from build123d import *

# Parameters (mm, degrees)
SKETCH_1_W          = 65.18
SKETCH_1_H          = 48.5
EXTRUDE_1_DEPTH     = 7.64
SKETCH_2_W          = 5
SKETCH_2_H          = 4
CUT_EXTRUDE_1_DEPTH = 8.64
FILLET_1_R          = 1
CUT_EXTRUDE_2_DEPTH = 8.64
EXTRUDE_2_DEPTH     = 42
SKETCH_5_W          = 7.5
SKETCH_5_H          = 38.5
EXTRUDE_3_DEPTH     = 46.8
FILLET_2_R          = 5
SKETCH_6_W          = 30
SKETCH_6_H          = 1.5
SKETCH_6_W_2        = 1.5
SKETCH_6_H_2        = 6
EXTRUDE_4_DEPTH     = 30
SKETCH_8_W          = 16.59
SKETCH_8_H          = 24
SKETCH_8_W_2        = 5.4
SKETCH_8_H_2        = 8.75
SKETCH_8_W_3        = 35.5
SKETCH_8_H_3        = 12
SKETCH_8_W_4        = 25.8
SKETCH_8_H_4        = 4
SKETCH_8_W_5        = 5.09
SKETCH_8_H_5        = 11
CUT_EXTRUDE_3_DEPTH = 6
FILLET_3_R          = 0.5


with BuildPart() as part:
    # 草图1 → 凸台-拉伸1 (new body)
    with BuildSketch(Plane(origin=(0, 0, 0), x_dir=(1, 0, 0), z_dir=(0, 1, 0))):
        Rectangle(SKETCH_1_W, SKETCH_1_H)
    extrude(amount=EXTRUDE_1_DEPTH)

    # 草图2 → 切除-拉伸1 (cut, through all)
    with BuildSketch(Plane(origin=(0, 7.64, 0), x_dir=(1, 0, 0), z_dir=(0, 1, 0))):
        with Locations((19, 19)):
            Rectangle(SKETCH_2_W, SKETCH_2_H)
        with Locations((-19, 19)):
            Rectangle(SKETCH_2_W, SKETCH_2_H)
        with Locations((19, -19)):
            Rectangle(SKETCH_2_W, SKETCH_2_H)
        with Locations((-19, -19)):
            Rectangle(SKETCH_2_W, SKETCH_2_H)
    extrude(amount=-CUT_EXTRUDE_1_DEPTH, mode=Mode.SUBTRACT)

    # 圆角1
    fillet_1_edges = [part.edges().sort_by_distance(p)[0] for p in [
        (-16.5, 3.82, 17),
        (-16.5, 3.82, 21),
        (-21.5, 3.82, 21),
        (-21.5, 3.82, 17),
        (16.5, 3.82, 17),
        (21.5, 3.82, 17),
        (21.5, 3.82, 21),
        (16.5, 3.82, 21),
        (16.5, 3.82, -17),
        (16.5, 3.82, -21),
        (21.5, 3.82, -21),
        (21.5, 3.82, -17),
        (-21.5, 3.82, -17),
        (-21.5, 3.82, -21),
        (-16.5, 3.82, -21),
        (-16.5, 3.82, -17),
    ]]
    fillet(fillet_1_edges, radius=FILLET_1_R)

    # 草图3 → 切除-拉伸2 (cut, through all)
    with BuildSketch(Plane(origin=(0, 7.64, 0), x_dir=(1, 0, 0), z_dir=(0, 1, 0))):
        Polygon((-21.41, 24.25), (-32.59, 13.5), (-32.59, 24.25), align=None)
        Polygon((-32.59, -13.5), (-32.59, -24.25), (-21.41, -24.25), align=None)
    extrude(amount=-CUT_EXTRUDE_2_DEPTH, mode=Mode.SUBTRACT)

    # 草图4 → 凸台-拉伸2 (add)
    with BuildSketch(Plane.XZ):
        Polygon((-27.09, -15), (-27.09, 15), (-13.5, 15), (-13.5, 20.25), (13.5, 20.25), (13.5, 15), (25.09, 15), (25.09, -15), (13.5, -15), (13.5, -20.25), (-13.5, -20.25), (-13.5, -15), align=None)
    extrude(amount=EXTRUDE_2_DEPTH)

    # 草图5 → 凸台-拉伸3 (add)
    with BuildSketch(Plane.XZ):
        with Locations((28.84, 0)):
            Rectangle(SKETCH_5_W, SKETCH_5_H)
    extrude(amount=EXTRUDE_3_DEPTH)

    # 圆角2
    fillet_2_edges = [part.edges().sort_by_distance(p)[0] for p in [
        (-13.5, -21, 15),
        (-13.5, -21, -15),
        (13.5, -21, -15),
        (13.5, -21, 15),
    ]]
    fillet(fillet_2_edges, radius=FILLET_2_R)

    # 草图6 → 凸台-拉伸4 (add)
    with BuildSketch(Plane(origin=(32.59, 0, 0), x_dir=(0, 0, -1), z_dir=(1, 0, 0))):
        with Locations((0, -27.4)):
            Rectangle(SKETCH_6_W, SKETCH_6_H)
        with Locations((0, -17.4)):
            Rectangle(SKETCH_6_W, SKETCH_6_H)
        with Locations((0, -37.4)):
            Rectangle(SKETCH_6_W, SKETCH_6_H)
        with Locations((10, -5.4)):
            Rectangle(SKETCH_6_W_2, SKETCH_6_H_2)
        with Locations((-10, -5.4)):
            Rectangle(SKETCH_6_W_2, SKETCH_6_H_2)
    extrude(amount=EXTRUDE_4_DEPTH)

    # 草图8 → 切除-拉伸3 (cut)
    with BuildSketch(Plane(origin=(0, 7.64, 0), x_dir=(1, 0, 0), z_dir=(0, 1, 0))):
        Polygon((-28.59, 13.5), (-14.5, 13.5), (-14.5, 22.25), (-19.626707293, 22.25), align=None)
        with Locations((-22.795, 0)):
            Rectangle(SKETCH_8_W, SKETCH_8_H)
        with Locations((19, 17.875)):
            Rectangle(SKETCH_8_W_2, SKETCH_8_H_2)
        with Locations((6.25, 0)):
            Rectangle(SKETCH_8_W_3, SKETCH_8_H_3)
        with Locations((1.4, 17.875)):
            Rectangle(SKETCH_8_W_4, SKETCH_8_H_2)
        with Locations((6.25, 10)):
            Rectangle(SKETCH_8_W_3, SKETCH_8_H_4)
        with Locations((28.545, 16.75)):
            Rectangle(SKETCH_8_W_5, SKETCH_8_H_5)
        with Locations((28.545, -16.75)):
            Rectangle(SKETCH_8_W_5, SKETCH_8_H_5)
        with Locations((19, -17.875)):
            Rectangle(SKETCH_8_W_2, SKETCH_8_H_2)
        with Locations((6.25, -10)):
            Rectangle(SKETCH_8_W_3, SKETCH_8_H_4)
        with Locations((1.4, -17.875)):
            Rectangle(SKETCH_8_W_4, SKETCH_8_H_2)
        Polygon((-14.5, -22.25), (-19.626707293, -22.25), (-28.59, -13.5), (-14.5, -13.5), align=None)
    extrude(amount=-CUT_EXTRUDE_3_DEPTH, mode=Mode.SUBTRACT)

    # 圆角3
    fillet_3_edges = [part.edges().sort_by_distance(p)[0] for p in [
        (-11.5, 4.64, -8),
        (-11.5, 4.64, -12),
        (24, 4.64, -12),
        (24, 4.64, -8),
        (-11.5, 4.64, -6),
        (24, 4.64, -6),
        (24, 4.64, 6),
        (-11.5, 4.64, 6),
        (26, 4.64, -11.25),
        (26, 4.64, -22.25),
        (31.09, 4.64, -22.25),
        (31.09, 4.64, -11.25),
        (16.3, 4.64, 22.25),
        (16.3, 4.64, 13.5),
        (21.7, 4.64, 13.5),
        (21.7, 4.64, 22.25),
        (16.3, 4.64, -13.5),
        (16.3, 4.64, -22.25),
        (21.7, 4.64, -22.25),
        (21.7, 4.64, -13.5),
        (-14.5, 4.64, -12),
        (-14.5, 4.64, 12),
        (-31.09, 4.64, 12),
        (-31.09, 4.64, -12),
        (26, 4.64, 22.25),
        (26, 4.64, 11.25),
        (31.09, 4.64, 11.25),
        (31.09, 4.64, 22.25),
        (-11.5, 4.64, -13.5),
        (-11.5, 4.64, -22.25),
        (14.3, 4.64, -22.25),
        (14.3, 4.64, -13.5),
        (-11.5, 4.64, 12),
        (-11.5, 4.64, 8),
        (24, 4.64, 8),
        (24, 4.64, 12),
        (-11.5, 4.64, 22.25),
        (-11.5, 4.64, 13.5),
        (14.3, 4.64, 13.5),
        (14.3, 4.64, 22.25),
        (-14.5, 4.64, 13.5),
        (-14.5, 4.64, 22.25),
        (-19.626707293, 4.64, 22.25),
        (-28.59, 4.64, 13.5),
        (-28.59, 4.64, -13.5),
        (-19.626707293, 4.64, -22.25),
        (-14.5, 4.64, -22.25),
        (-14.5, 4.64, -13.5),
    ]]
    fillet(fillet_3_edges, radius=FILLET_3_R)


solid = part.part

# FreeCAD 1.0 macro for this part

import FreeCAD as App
import Part
import Sketcher


def edges_at(feature, points):
    """Names of the edges that pass closest to the given points."""
    edges = feature.Shape.Edges
    near = lambda p: min(range(len(edges)), key=lambda i: edges[i].distToShape(Part.Vertex(*p))[0])
    return sorted({f"Edge{near(p) + 1}" for p in points})

doc = App.newDocument("Part")
body = doc.addObject("PartDesign::Body", "Body")

# Sketch on XZ plane
sketch1 = body.newObject("Sketcher::SketchObject", "Sketch")
sketch1.AttachmentSupport = (doc.getObject("XZ_Plane"), [""])
sketch1.MapMode = "FlatFace"
sketch1.addGeometry(Part.LineSegment(App.Vector(-32.59, -24.25, 0), App.Vector(-32.59, 24.25, 0)), False)
sketch1.addGeometry(Part.LineSegment(App.Vector(-32.59, 24.25, 0), App.Vector(32.59, 24.25, 0)), False)
sketch1.addGeometry(Part.LineSegment(App.Vector(32.59, 24.25, 0), App.Vector(32.59, -24.25, 0)), False)
sketch1.addGeometry(Part.LineSegment(App.Vector(32.59, -24.25, 0), App.Vector(-32.59, -24.25, 0)), False)
sketch1.addConstraint(Sketcher.Constraint("Coincident", 0, 2, 1, 1))
sketch1.addConstraint(Sketcher.Constraint("Coincident", 1, 2, 2, 1))
sketch1.addConstraint(Sketcher.Constraint("Coincident", 2, 2, 3, 1))
sketch1.addConstraint(Sketcher.Constraint("Coincident", 3, 2, 0, 1))
sketch1.addConstraint(Sketcher.Constraint("Vertical", 0))
sketch1.addConstraint(Sketcher.Constraint("Horizontal", 1))
sketch1.addConstraint(Sketcher.Constraint("Vertical", 2))
sketch1.addConstraint(Sketcher.Constraint("Horizontal", 3))
sketch1.addConstraint(Sketcher.Constraint("Symmetric", 0, 2, 2, 2, -1, 1))
sketch1.addConstraint(Sketcher.Constraint("DistanceY", 0, 1, 0, 2, 48.5))
sketch1.addConstraint(Sketcher.Constraint("DistanceX", 1, 1, 1, 2, 65.18))
pad1 = body.newObject("PartDesign::Pad", "Pad")
pad1.Profile = sketch1
pad1.Length = 7.64
pad1.Reversed = True

# Sketch on XZ plane
sketch2 = body.newObject("Sketcher::SketchObject", "Sketch001")
sketch2.AttachmentSupport = (doc.getObject("XZ_Plane"), [""])
sketch2.MapMode = "FlatFace"
sketch2.AttachmentOffset = App.Placement(App.Vector(0, 0, -7.64), App.Rotation())
sketch2.addGeometry(Part.LineSegment(App.Vector(16.5, -21, 0), App.Vector(16.5, -17, 0)), False)
sketch2.addGeometry(Part.LineSegment(App.Vector(16.5, -17, 0), App.Vector(21.5, -17, 0)), False)
sketch2.addGeometry(Part.LineSegment(App.Vector(21.5, -17, 0), App.Vector(21.5, -21, 0)), False)
sketch2.addGeometry(Part.LineSegment(App.Vector(21.5, -21, 0), App.Vector(16.5, -21, 0)), False)
sketch2.addGeometry(Part.LineSegment(App.Vector(-21.5, -21, 0), App.Vector(-21.5, -17, 0)), False)
sketch2.addGeometry(Part.LineSegment(App.Vector(-21.5, -17, 0), App.Vector(-16.5, -17, 0)), False)
sketch2.addGeometry(Part.LineSegment(App.Vector(-16.5, -17, 0), App.Vector(-16.5, -21, 0)), False)
sketch2.addGeometry(Part.LineSegment(App.Vector(-16.5, -21, 0), App.Vector(-21.5, -21, 0)), False)
sketch2.addGeometry(Part.LineSegment(App.Vector(16.5, 17, 0), App.Vector(16.5, 21, 0)), False)
sketch2.addGeometry(Part.LineSegment(App.Vector(16.5, 21, 0), App.Vector(21.5, 21, 0)), False)
sketch2.addGeometry(Part.LineSegment(App.Vector(21.5, 21, 0), App.Vector(21.5, 17, 0)), False)
sketch2.addGeometry(Part.LineSegment(App.Vector(21.5, 17, 0), App.Vector(16.5, 17, 0)), False)
sketch2.addGeometry(Part.LineSegment(App.Vector(-21.5, 17, 0), App.Vector(-21.5, 21, 0)), False)
sketch2.addGeometry(Part.LineSegment(App.Vector(-21.5, 21, 0), App.Vector(-16.5, 21, 0)), False)
sketch2.addGeometry(Part.LineSegment(App.Vector(-16.5, 21, 0), App.Vector(-16.5, 17, 0)), False)
sketch2.addGeometry(Part.LineSegment(App.Vector(-16.5, 17, 0), App.Vector(-21.5, 17, 0)), False)
sketch2.addConstraint(Sketcher.Constraint("Coincident", 0, 2, 1, 1))
sketch2.addConstraint(Sketcher.Constraint("Coincident", 1, 2, 2, 1))
sketch2.addConstraint(Sketcher.Constraint("Coincident", 2, 2, 3, 1))
sketch2.addConstraint(Sketcher.Constraint("Coincident", 3, 2, 0, 1))
sketch2.addConstraint(Sketcher.Constraint("Coincident", 4, 2, 5, 1))
sketch2.addConstraint(Sketcher.Constraint("Coincident", 5, 2, 6, 1))
sketch2.addConstraint(Sketcher.Constraint("Coincident", 6, 2, 7, 1))
sketch2.addConstraint(Sketcher.Constraint("Coincident", 7, 2, 4, 1))
sketch2.addConstraint(Sketcher.Constraint("Coincident", 8, 2, 9, 1))
sketch2.addConstraint(Sketcher.Constraint("Coincident", 9, 2, 10, 1))
sketch2.addConstraint(Sketcher.Constraint("Coincident", 10, 2, 11, 1))
sketch2.addConstraint(Sketcher.Constraint("Coincident", 11, 2, 8, 1))
sketch2.addConstraint(Sketcher.Constraint("Coincident", 12, 2, 13, 1))
sketch2.addConstraint(Sketcher.Constraint("Coincident", 13, 2, 14, 1))
sketch2.addConstraint(Sketcher.Constraint("Coincident", 14, 2, 15, 1))
sketch2.addConstraint(Sketcher.Constraint("Coincident", 15, 2, 12, 1))
sketch2.addConstraint(Sketcher.Constraint("Vertical", 0))
sketch2.addConstraint(Sketcher.Constraint("Horizontal", 1))
sketch2.addConstraint(Sketcher.Constraint("Vertical", 2))
sketch2.addConstraint(Sketcher.Constraint("Horizontal", 3))
sketch2.addConstraint(Sketcher.Constraint("Vertical", 4))
sketch2.addConstraint(Sketcher.Constraint("Horizontal", 5))
sketch2.addConstraint(Sketcher.Constraint("Vertical", 6))
sketch2.addConstraint(Sketcher.Constraint("Horizontal", 7))
sketch2.addConstraint(Sketcher.Constraint("Vertical", 8))
sketch2.addConstraint(Sketcher.Constraint("Horizontal", 9))
sketch2.addConstraint(Sketcher.Constraint("Vertical", 10))
sketch2.addConstraint(Sketcher.Constraint("Horizontal", 11))
sketch2.addConstraint(Sketcher.Constraint("Vertical", 12))
sketch2.addConstraint(Sketcher.Constraint("Horizontal", 13))
sketch2.addConstraint(Sketcher.Constraint("Vertical", 14))
sketch2.addConstraint(Sketcher.Constraint("Horizontal", 15))
sketch2.addConstraint(Sketcher.Constraint("Symmetric", 6, 2, 8, 2, -1, 1))
sketch2.addConstraint(Sketcher.Constraint("Symmetric", 4, 2, 10, 2, -1, 1))
sketch2.addConstraint(Sketcher.Constraint("Symmetric", 2, 2, 12, 2, -1, 1))
sketch2.addConstraint(Sketcher.Constraint("Symmetric", 0, 2, 14, 2, -1, 1))
sketch2.addConstraint(Sketcher.Constraint("Symmetric", 1, 2, 4, 2, -2))
sketch2.addConstraint(Sketcher.Constraint("Symmetric", 3, 2, 6, 2, -2))
sketch2.addConstraint(Sketcher.Constraint("DistanceX", 1, 1, 1, 2, 5.0))
sketch2.addConstraint(Sketcher.Constraint("DistanceY", 0, 1, 0, 2, 4.0))
sketch2.addConstraint(Sketcher.Constraint("DistanceY", 0, 2, -1, 1, 17.0))
sketch2.addConstraint(Sketcher.Constraint("DistanceX", 4, 2, 0, 2, 38.0))
pocket1 = body.newObject("PartDesign::Pocket", "Pocket")
pocket1.Profile = sketch2
pocket1.Type = "ThroughAll"
pocket1.Reversed = True
doc.recompute()

fillet = body.newObject("PartDesign::Fillet", "Fillet")
fillet.Base = (pocket1, edges_at(pocket1, [
    (-16.5, 3.82, 17),
    (-16.5, 3.82, 21),
    (-21.5, 3.82, 21),
    (-21.5, 3.82, 17),
    (16.5, 3.82, 17),
    (21.5, 3.82, 17),
    (21.5, 3.82, 21),
    (16.5, 3.82, 21),
    (16.5, 3.82, -17),
    (16.5, 3.82, -21),
    (21.5, 3.82, -21),
    (21.5, 3.82, -17),
    (-21.5, 3.82, -17),
    (-21.5, 3.82, -21),
    (-16.5, 3.82, -21),
    (-16.5, 3.82, -17),
]))
fillet.Radius = 1

# Sketch on XZ plane
sketch3 = body.newObject("Sketcher::SketchObject", "Sketch002")
sketch3.AttachmentSupport = (doc.getObject("XZ_Plane"), [""])
sketch3.MapMode = "FlatFace"
sketch3.AttachmentOffset = App.Placement(App.Vector(0, 0, -7.64), App.Rotation())
sketch3.addGeometry(Part.LineSegment(App.Vector(-32.59, -13.5, 0), App.Vector(-21.41, -24.25, 0)), False)
sketch3.addGeometry(Part.LineSegment(App.Vector(-21.41, -24.25, 0), App.Vector(-32.59, -24.25, 0)), False)
sketch3.addGeometry(Part.LineSegment(App.Vector(-32.59, -24.25, 0), App.Vector(-32.59, -13.5, 0)), False)
sketch3.addGeometry(Part.LineSegment(App.Vector(-32.59, 13.5, 0), App.Vector(-32.59, 24.25, 0)), False)
sketch3.addGeometry(Part.LineSegment(App.Vector(-32.59, 24.25, 0), App.Vector(-21.41, 24.25, 0)), False)
sketch3.addGeometry(Part.LineSegment(App.Vector(-21.41, 24.25, 0), App.Vector(-32.59, 13.5, 0)), False)
sketch3.addConstraint(Sketcher.Constraint("Coincident", 0, 2, 1, 1))
sketch3.addConstraint(Sketcher.Constraint("Coincident", 1, 2, 2, 1))
sketch3.addConstraint(Sketcher.Constraint("Coincident", 2, 2, 0, 1))
sketch3.addConstraint(Sketcher.Constraint("Coincident", 3, 2, 4, 1))
sketch3.addConstraint(Sketcher.Constraint("Coincident", 4, 2, 5, 1))
sketch3.addConstraint(Sketcher.Constraint("Coincident", 5, 2, 3, 1))
sketch3.addConstraint(Sketcher.Constraint("Horizontal", 1))
sketch3.addConstraint(Sketcher.Constraint("Vertical", 2))
sketch3.addConstraint(Sketcher.Constraint("Vertical", 3))
sketch3.addConstraint(Sketcher.Constraint("Horizontal", 4))
sketch3.addConstraint(Sketcher.Constraint("Symmetric", 1, 2, 3, 2, -1))
sketch3.addConstraint(Sketcher.Constraint("Vertical", 0, 2, 4, 2))
sketch3.addConstraint(Sketcher.Constraint("Equal", 2, 3))
sketch3.addConstraint(Sketcher.Constraint("DistanceY", 2, 2, 5, 2, 27.0))
sketch3.addConstraint(Sketcher.Constraint("DistanceX", 1, 2, 1, 1, 11.18))
sketch3.addConstraint(Sketcher.Constraint("DistanceY", 2, 1, 2, 2, 10.75))
sketch3.addConstraint(Sketcher.Constraint("DistanceX", 0, 2, -1, 1, 21.41))
pocket2 = body.newObject("PartDesign::Pocket", "Pocket001")
pocket2.Profile = sketch3
pocket2.Type = "ThroughAll"
pocket2.Reversed = True

# Sketch on XZ plane
sketch4 = body.newObject("Sketcher::SketchObject", "Sketch003")
sketch4.AttachmentSupport = (doc.getObject("XZ_Plane"), [""])
sketch4.MapMode = "FlatFace"
sketch4.addGeometry(Part.LineSegment(App.Vector(-27.09, 15, 0), App.Vector(-27.09, -15, 0)), False)
sketch4.addGeometry(Part.LineSegment(App.Vector(-27.09, -15, 0), App.Vector(-13.5, -15, 0)), False)
sketch4.addGeometry(Part.LineSegment(App.Vector(-13.5, -15, 0), App.Vector(-13.5, -20.25, 0)), False)
sketch4.addGeometry(Part.LineSegment(App.Vector(-13.5, -20.25, 0), App.Vector(13.5, -20.25, 0)), False)
sketch4.addGeometry(Part.LineSegment(App.Vector(13.5, -20.25, 0), App.Vector(13.5, -15, 0)), False)
sketch4.addGeometry(Part.LineSegment(App.Vector(13.5, -15, 0), App.Vector(25.09, -15, 0)), False)
sketch4.addGeometry(Part.LineSegment(App.Vector(25.09, -15, 0), App.Vector(25.09, 15, 0)), False)
sketch4.addGeometry(Part.LineSegment(App.Vector(25.09, 15, 0), App.Vector(13.5, 15, 0)), False)
sketch4.addGeometry(Part.LineSegment(App.Vector(13.5, 15, 0), App.Vector(13.5, 20.25, 0)), False)
sketch4.addGeometry(Part.LineSegment(App.Vector(13.5, 20.25, 0), App.Vector(-13.5, 20.25, 0)), False)
sketch4.addGeometry(Part.LineSegment(App.Vector(-13.5, 20.25, 0), App.Vector(-13.5, 15, 0)), False)
sketch4.addGeometry(Part.LineSegment(App.Vector(-13.5, 15, 0), App.Vector(-27.09, 15, 0)), False)
sketch4.addConstraint(Sketcher.Constraint("Coincident", 0, 2, 1, 1))
sketch4.addConstraint(Sketcher.Constraint("Coincident", 1, 2, 2, 1))
sketch4.addConstraint(Sketcher.Constraint("Coincident", 2, 2, 3, 1))
sketch4.addConstraint(Sketcher.Constraint("Coincident", 3, 2, 4, 1))
sketch4.addConstraint(Sketcher.Constraint("Coincident", 4, 2, 5, 1))
sketch4.addConstraint(Sketcher.Constraint("Coincident", 5, 2, 6, 1))
sketch4.addConstraint(Sketcher.Constraint("Coincident", 6, 2, 7, 1))
sketch4.addConstraint(Sketcher.Constraint("Coincident", 7, 2, 8, 1))
sketch4.addConstraint(Sketcher.Constraint("Coincident", 8, 2, 9, 1))
sketch4.addConstraint(Sketcher.Constraint("Coincident", 9, 2, 10, 1))
sketch4.addConstraint(Sketcher.Constraint("Coincident", 10, 2, 11, 1))
sketch4.addConstraint(Sketcher.Constraint("Coincident", 11, 2, 0, 1))
sketch4.addConstraint(Sketcher.Constraint("Vertical", 0))
sketch4.addConstraint(Sketcher.Constraint("Horizontal", 1))
sketch4.addConstraint(Sketcher.Constraint("Vertical", 2))
sketch4.addConstraint(Sketcher.Constraint("Horizontal", 3))
sketch4.addConstraint(Sketcher.Constraint("Vertical", 4))
sketch4.addConstraint(Sketcher.Constraint("Horizontal", 5))
sketch4.addConstraint(Sketcher.Constraint("Vertical", 6))
sketch4.addConstraint(Sketcher.Constraint("Horizontal", 7))
sketch4.addConstraint(Sketcher.Constraint("Vertical", 8))
sketch4.addConstraint(Sketcher.Constraint("Horizontal", 9))
sketch4.addConstraint(Sketcher.Constraint("Vertical", 10))
sketch4.addConstraint(Sketcher.Constraint("Horizontal", 11))
sketch4.addConstraint(Sketcher.Constraint("Symmetric", 1, 2, 7, 2, -1, 1))
sketch4.addConstraint(Sketcher.Constraint("Symmetric", 3, 2, 9, 2, -1, 1))
sketch4.addConstraint(Sketcher.Constraint("Symmetric", 1, 2, 4, 2, -2))
sketch4.addConstraint(Sketcher.Constraint("Horizontal", 7, 2, 10, 2))
sketch4.addConstraint(Sketcher.Constraint("DistanceX", 3, 1, 3, 2, 27.0))
sketch4.addConstraint(Sketcher.Constraint("DistanceY", 0, 2, 0, 1, 30.0))
sketch4.addConstraint(Sketcher.Constraint("DistanceX", 1, 1, 1, 2, 13.59))
sketch4.addConstraint(Sketcher.Constraint("DistanceX", 5, 1, 5, 2, 11.59))
sketch4.addConstraint(Sketcher.Constraint("DistanceY", 2, 2, 2, 1, 5.25))
pad2 = body.newObject("PartDesign::Pad", "Pad001")
pad2.Profile = sketch4
pad2.Length = 42

# Sketch on XZ plane
sketch5 = body.newObject("Sketcher::SketchObject", "Sketch004")
sketch5.AttachmentSupport = (doc.getObject("XZ_Plane"), [""])
sketch5.MapMode = "FlatFace"
sketch5.addGeometry(Part.LineSegment(App.Vector(25.09, 19.25, 0), App.Vector(25.09, -19.25, 0)), False)
sketch5.addGeometry(Part.LineSegment(App.Vector(25.09, -19.25, 0), App.Vector(32.59, -19.25, 0)), False)
sketch5.addGeometry(Part.LineSegment(App.Vector(32.59, -19.25, 0), App.Vector(32.59, 19.25, 0)), False)
sketch5.addGeometry(Part.LineSegment(App.Vector(32.59, 19.25, 0), App.Vector(25.09, 19.25, 0)), False)
sketch5.addConstraint(Sketcher.Constraint("Coincident", 0, 2, 1, 1))
sketch5.addConstraint(Sketcher.Constraint("Coincident", 1, 2, 2, 1))
sketch5.addConstraint(Sketcher.Constraint("Coincident", 2, 2, 3, 1))
sketch5.addConstraint(Sketcher.Constraint("Coincident", 3, 2, 0, 1))
sketch5.addConstraint(Sketcher.Constraint("Vertical", 0))
sketch5.addConstraint(Sketcher.Constraint("Horizontal", 1))
sketch5.addConstraint(Sketcher.Constraint("Vertical", 2))
sketch5.addConstraint(Sketcher.Constraint("Horizontal", 3))
sketch5.addConstraint(Sketcher.Constraint("DistanceX", 1, 1, 1, 2, 7.5))
sketch5.addConstraint(Sketcher.Constraint("DistanceY", 0, 2, 0, 1, 38.5))
sketch5.addConstraint(Sketcher.Constraint("DistanceX", -1, 1, 0, 2, 25.09))
sketch5.addConstraint(Sketcher.Constraint("DistanceY", 0, 2, -1, 1, 19.25))
pad3 = body.newObject("PartDesign::Pad", "Pad002")
pad3.Profile = sketch5
pad3.Length = 46.8
doc.recompute()

fillet2 = body.newObject("PartDesign::Fillet", "Fillet001")
fillet2.Base = (pad3, edges_at(pad3, [
    (-13.5, -21, 15),
    (-13.5, -21, -15),
    (13.5, -21, -15),
    (13.5, -21, 15),
]))
fillet2.Radius = 5

# Sketch on YZ plane
sketch6 = body.newObject("Sketcher::SketchObject", "Sketch005")
sketch6.AttachmentSupport = (doc.getObject("YZ_Plane"), [""])
sketch6.MapMode = "FlatFace"
sketch6.AttachmentOffset = App.Placement(App.Vector(0, 0, 32.59), App.Rotation())
sketch6.addGeometry(Part.LineSegment(App.Vector(-26.65, 15, 0), App.Vector(-28.15, 15, 0)), False)
sketch6.addGeometry(Part.LineSegment(App.Vector(-28.15, 15, 0), App.Vector(-28.15, -15, 0)), False)
sketch6.addGeometry(Part.LineSegment(App.Vector(-28.15, -15, 0), App.Vector(-26.65, -15, 0)), False)
sketch6.addGeometry(Part.LineSegment(App.Vector(-26.65, -15, 0), App.Vector(-26.65, 15, 0)), False)
sketch6.addGeometry(Part.LineSegment(App.Vector(-16.65, 15, 0), App.Vector(-18.15, 15, 0)), False)
sketch6.addGeometry(Part.LineSegment(App.Vector(-18.15, 15, 0), App.Vector(-18.15, -15, 0)), False)
sketch6.addGeometry(Part.LineSegment(App.Vector(-18.15, -15, 0), App.Vector(-16.65, -15, 0)), False)
sketch6.addGeometry(Part.LineSegment(App.Vector(-16.65, -15, 0), App.Vector(-16.65, 15, 0)), False)
sketch6.addGeometry(Part.LineSegment(App.Vector(-36.65, 15, 0), App.Vector(-38.15, 15, 0)), False)
sketch6.addGeometry(Part.LineSegment(App.Vector(-38.15, 15, 0), App.Vector(-38.15, -15, 0)), False)
sketch6.addGeometry(Part.LineSegment(App.Vector(-38.15, -15, 0), App.Vector(-36.65, -15, 0)), False)
sketch6.addGeometry(Part.LineSegment(App.Vector(-36.65, -15, 0), App.Vector(-36.65, 15, 0)), False)
sketch6.addGeometry(Part.LineSegment(App.Vector(-2.4, -9.25, 0), App.Vector(-8.4, -9.25, 0)), False)
sketch6.addGeometry(Part.LineSegment(App.Vector(-8.4, -9.25, 0), App.Vector(-8.4, -10.75, 0)), False)
sketch6.addGeometry(Part.LineSegment(App.Vector(-8.4, -10.75, 0), App.Vector(-2.4, -10.75, 0)), False)
sketch6.addGeometry(Part.LineSegment(App.Vector(-2.4, -10.75, 0), App.Vector(-2.4, -9.25, 0)), False)
sketch6.addGeometry(Part.LineSegment(App.Vector(-2.4, 10.75, 0), App.Vector(-8.4, 10.75, 0)), False)
sketch6.addGeometry(Part.LineSegment(App.Vector(-8.4, 10.75, 0), App.Vector(-8.4, 9.25, 0)), False)
sketch6.addGeometry(Part.LineSegment(App.Vector(-8.4, 9.25, 0), App.Vector(-2.4, 9.25, 0)), False)
sketch6.addGeometry(Part.LineSegment(App.Vector(-2.4, 9.25, 0), App.Vector(-2.4, 10.75, 0)), False)
sketch6.addConstraint(Sketcher.Constraint("Coincident", 0, 2, 1, 1))
sketch6.addConstraint(Sketcher.Constraint("Coincident", 1, 2, 2, 1))
sketch6.addConstraint(Sketcher.Constraint("Coincident", 2, 2, 3, 1))
sketch6.addConstraint(Sketcher.Constraint("Coincident", 3, 2, 0, 1))
sketch6.addConstraint(Sketcher.Constraint("Coincident", 4, 2, 5, 1))
sketch6.addConstraint(Sketcher.Constraint("Coincident", 5, 2, 6, 1))
sketch6.addConstraint(Sketcher.Constraint("Coincident", 6, 2, 7, 1))
sketch6.addConstraint(Sketcher.Constraint("Coincident", 7, 2, 4, 1))
sketch6.addConstraint(Sketcher.Constraint("Coincident", 8, 2, 9, 1))
sketch6.addConstraint(Sketcher.Constraint("Coincident", 9, 2, 10, 1))
sketch6.addConstraint(Sketcher.Constraint("Coincident", 10, 2, 11, 1))
sketch6.addConstraint(Sketcher.Constraint("Coincident", 11, 2, 8, 1))
sketch6.addConstraint(Sketcher.Constraint("Coincident", 12, 2, 13, 1))
sketch6.addConstraint(Sketcher.Constraint("Coincident", 13, 2, 14, 1))
sketch6.addConstraint(Sketcher.Constraint("Coincident", 14, 2, 15, 1))
sketch6.addConstraint(Sketcher.Constraint("Coincident", 15, 2, 12, 1))
sketch6.addConstraint(Sketcher.Constraint("Coincident", 16, 2, 17, 1))
sketch6.addConstraint(Sketcher.Constraint("Coincident", 17, 2, 18, 1))
sketch6.addConstraint(Sketcher.Constraint("Coincident", 18, 2, 19, 1))
sketch6.addConstraint(Sketcher.Constraint("Coincident", 19, 2, 16, 1))
sketch6.addConstraint(Sketcher.Constraint("Horizontal", 0))
sketch6.addConstraint(Sketcher.Constraint("Vertical", 1))
sketch6.addConstraint(Sketcher.Constraint("Horizontal", 2))
sketch6.addConstraint(Sketcher.Constraint("Vertical", 3))
sketch6.addConstraint(Sketcher.Constraint("Horizontal", 4))
sketch6.addConstraint(Sketcher.Constraint("Vertical", 5))
sketch6.addConstraint(Sketcher.Constraint("Horizontal", 6))
sketch6.addConstraint(Sketcher.Constraint("Vertical", 7))
sketch6.addConstraint(Sketcher.Constraint("Horizontal", 8))
sketch6.addConstraint(Sketcher.Constraint("Vertical", 9))
sketch6.addConstraint(Sketcher.Constraint("Horizontal", 10))
sketch6.addConstraint(Sketcher.Constraint("Vertical", 11))
sketch6.addConstraint(Sketcher.Constraint("Horizontal", 12))
sketch6.addConstraint(Sketcher.Constraint("Vertical", 13))
sketch6.addConstraint(Sketcher.Constraint("Horizontal", 14))
sketch6.addConstraint(Sketcher.Constraint("Vertical", 15))
sketch6.addConstraint(Sketcher.Constraint("Horizontal", 16))
sketch6.addConstraint(Sketcher.Constraint("Vertical", 17))
sketch6.addConstraint(Sketcher.Constraint("Horizontal", 18))
sketch6.addConstraint(Sketcher.Constraint("Vertical", 19))
sketch6.addConstraint(Sketcher.Constraint("Symmetric", 13, 2, 16, 2, -1))
sketch6.addConstraint(Sketcher.Constraint("Symmetric", 15, 2, 18, 2, -1))
sketch6.addConstraint(Sketcher.Constraint("Horizontal", 3, 2, 4, 2))
sketch6.addConstraint(Sketcher.Constraint("Horizontal", 2, 2, 5, 2))
sketch6.addConstraint(Sketcher.Constraint("Horizontal", 7, 2, 8, 2))
sketch6.addConstraint(Sketcher.Constraint("Horizontal", 6, 2, 9, 2))
sketch6.addConstraint(Sketcher.Constraint("Equal", 2, 4))
sketch6.addConstraint(Sketcher.Constraint("Equal", 6, 8))
sketch6.addConstraint(Sketcher.Constraint("Equal", 10, 13))
sketch6.addConstraint(Sketcher.Constraint("DistanceX", 12, 2, 12, 1, 6.0))
sketch6.addConstraint(Sketcher.Constraint("DistanceY", 1, 2, 1, 1, 30.0))
sketch6.addConstraint(Sketcher.Constraint("DistanceX", 0, 2, 0, 1, 1.5))
sketch6.addConstraint(Sketcher.Constraint("DistanceY", -1, 1, 0, 2, 15.0))
sketch6.addConstraint(Sketcher.Constraint("DistanceX", 0, 2, 4, 2, 10.0))
sketch6.addConstraint(Sketcher.Constraint("DistanceX", 8, 2, 0, 2, 10.0))
sketch6.addConstraint(Sketcher.Constraint("DistanceY", 12, 2, 16, 2, 20.0))
sketch6.addConstraint(Sketcher.Constraint("DistanceX", 12, 2, -1, 1, 8.4))
sketch6.addConstraint(Sketcher.Constraint("DistanceX", 0, 2, -1, 1, 28.15))
pad4 = body.newObject("PartDesign::Pad", "Pad003")
pad4.Profile = sketch6
pad4.Length = 30

# Sketch on XZ plane
sketch7 = body.newObject("Sketcher::SketchObject", "Sketch006")
sketch7.AttachmentSupport = (doc.getObject("XZ_Plane"), [""])
sketch7.MapMode = "FlatFace"
sketch7.AttachmentOffset = App.Placement(App.Vector(0, 0, -7.64), App.Rotation())
sketch7.addGeometry(Part.LineSegment(App.Vector(-28.59, -13.5, 0), App.Vector(-14.5, -13.5, 0)), False)
sketch7.addGeometry(Part.LineSegment(App.Vector(-14.5, -13.5, 0), App.Vector(-14.5, -22.25, 0)), False)
sketch7.addGeometry(Part.LineSegment(App.Vector(-14.5, -22.25, 0), App.Vector(-19.626707, -22.25, 0)), False)
sketch7.addGeometry(Part.LineSegment(App.Vector(-19.626707, -22.25, 0), App.Vector(-28.59, -13.5, 0)), False)
sketch7.addGeometry(Part.LineSegment(App.Vector(-31.09, -12, 0), App.Vector(-31.09, 12, 0)), False)
sketch7.addGeometry(Part.LineSegment(App.Vector(-31.09, 12, 0), App.Vector(-14.5, 12, 0)), False)
sketch7.addGeometry(Part.LineSegment(App.Vector(-14.5, 12, 0), App.Vector(-14.5, -12, 0)), False)
sketch7.addGeometry(Part.LineSegment(App.Vector(-14.5, -12, 0), App.Vector(-31.09, -12, 0)), False)
sketch7.addGeometry(Part.LineSegment(App.Vector(16.3, -22.25, 0), App.Vector(16.3, -13.5, 0)), False)
sketch7.addGeometry(Part.LineSegment(App.Vector(16.3, -13.5, 0), App.Vector(21.7, -13.5, 0)), False)
sketch7.addGeometry(Part.LineSegment(App.Vector(21.7, -13.5, 0), App.Vector(21.7, -22.25, 0)), False)
sketch7.addGeometry(Part.LineSegment(App.Vector(21.7, -22.25, 0), App.Vector(16.3, -22.25, 0)), False)
sketch7.addGeometry(Part.LineSegment(App.Vector(-11.5, -6, 0), App.Vector(-11.5, 6, 0)), False)
sketch7.addGeometry(Part.LineSegment(App.Vector(-11.5, 6, 0), App.Vector(24, 6, 0)), False)
sketch7.addGeometry(Part.LineSegment(App.Vector(24, 6, 0), App.Vector(24, -6, 0)), False)
sketch7.addGeometry(Part.LineSegment(App.Vector(24, -6, 0), App.Vector(-11.5, -6, 0)), False)
sketch7.addGeometry(Part.LineSegment(App.Vector(-11.5, -22.25, 0), App.Vector(-11.5, -13.5, 0)), False)
sketch7.addGeometry(Part.LineSegment(App.Vector(-11.5, -13.5, 0), App.Vector(14.3, -13.5, 0)), False)
sketch7.addGeometry(Part.LineSegment(App.Vector(14.3, -13.5, 0), App.Vector(14.3, -22.25, 0)), False)
sketch7.addGeometry(Part.LineSegment(App.Vector(14.3, -22.25, 0), App.Vector(-11.5, -22.25, 0)), False)
sketch7.addGeometry(Part.LineSegment(App.Vector(-11.5, -12, 0), App.Vector(-11.5, -8, 0)), False)
sketch7.addGeometry(Part.LineSegment(App.Vector(-11.5, -8, 0), App.Vector(24, -8, 0)), False)
sketch7.addGeometry(Part.LineSegment(App.Vector(24, -8, 0), App.Vector(24, -12, 0)), False)
sketch7.addGeometry(Part.LineSegment(App.Vector(24, -12, 0), App.Vector(-11.5, -12, 0)), False)
sketch7.addGeometry(Part.LineSegment(App.Vector(26, -22.25, 0), App.Vector(26, -11.25, 0)), False)
sketch7.addGeometry(Part.LineSegment(App.Vector(26, -11.25, 0), App.Vector(31.09, -11.25, 0)), False)
sketch7.addGeometry(Part.LineSegment(App.Vector(31.09, -11.25, 0), App.Vector(31.09, -22.25, 0)), False)
sketch7.addGeometry(Part.LineSegment(App.Vector(31.09, -22.25, 0), App.Vector(26, -22.25, 0)), False)
sketch7.addGeometry(Part.LineSegment(App.Vector(26, 11.25, 0), App.Vector(26, 22.25, 0)), False)
sketch7.addGeometry(Part.LineSegment(App.Vector(26, 22.25, 0), App.Vector(31.09, 22.25, 0)), False)
sketch7.addGeometry(Part.LineSegment(App.Vector(31.09, 22.25, 0), App.Vector(31.09, 11.25, 0)), False)
sketch7.addGeometry(Part.LineSegment(App.Vector(31.09, 11.25, 0), App.Vector(26, 11.25, 0)), False)
sketch7.addGeometry(Part.LineSegment(App.Vector(16.3, 13.5, 0), App.Vector(16.3, 22.25, 0)), False)
sketch7.addGeometry(Part.LineSegment(App.Vector(16.3, 22.25, 0), App.Vector(21.7, 22.25, 0)), False)
sketch7.addGeometry(Part.LineSegment(App.Vector(21.7, 22.25, 0), App.Vector(21.7, 13.5, 0)), False)
sketch7.addGeometry(Part.LineSegment(App.Vector(21.7, 13.5, 0), App.Vector(16.3, 13.5, 0)), False)
sketch7.addGeometry(Part.LineSegment(App.Vector(-11.5, 8, 0), App.Vector(-11.5, 12, 0)), False)
sketch7.addGeometry(Part.LineSegment(App.Vector(-11.5, 12, 0), App.Vector(24, 12, 0)), False)
sketch7.addGeometry(Part.LineSegment(App.Vector(24, 12, 0), App.Vector(24, 8, 0)), False)
sketch7.addGeometry(Part.LineSegment(App.Vector(24, 8, 0), App.Vector(-11.5, 8, 0)), False)
sketch7.addGeometry(Part.LineSegment(App.Vector(-11.5, 13.5, 0), App.Vector(-11.5, 22.25, 0)), False)
sketch7.addGeometry(Part.LineSegment(App.Vector(-11.5, 22.25, 0), App.Vector(14.3, 22.25, 0)), False)
sketch7.addGeometry(Part.LineSegment(App.Vector(14.3, 22.25, 0), App.Vector(14.3, 13.5, 0)), False)
sketch7.addGeometry(Part.LineSegment(App.Vector(14.3, 13.5, 0), App.Vector(-11.5, 13.5, 0)), False)
sketch7.addGeometry(Part.LineSegment(App.Vector(-19.626707, 22.25, 0), App.Vector(-14.5, 22.25, 0)), False)
sketch7.addGeometry(Part.LineSegment(App.Vector(-14.5, 22.25, 0), App.Vector(-14.5, 13.5, 0)), False)
sketch7.addGeometry(Part.LineSegment(App.Vector(-14.5, 13.5, 0), App.Vector(-28.59, 13.5, 0)), False)
sketch7.addGeometry(Part.LineSegment(App.Vector(-28.59, 13.5, 0), App.Vector(-19.626707, 22.25, 0)), False)
sketch7.addConstraint(Sketcher.Constraint("Coincident", 0, 2, 1, 1))
sketch7.addConstraint(Sketcher.Constraint("Coincident", 1, 2, 2, 1))
sketch7.addConstraint(Sketcher.Constraint("Coincident", 2, 2, 3, 1))
sketch7.addConstraint(Sketcher.Constraint("Coincident", 3, 2, 0, 1))
sketch7.addConstraint(Sketcher.Constraint("Coincident", 4, 2, 5, 1))
sketch7.addConstraint(Sketcher.Constraint("Coincident", 5, 2, 6, 1))
sketch7.addConstraint(Sketcher.Constraint("Coincident", 6, 2, 7, 1))
sketch7.addConstraint(Sketcher.Constraint("Coincident", 7, 2, 4, 1))
sketch7.addConstraint(Sketcher.Constraint("Coincident", 8, 2, 9, 1))
sketch7.addConstraint(Sketcher.Constraint("Coincident", 9, 2, 10, 1))
sketch7.addConstraint(Sketcher.Constraint("Coincident", 10, 2, 11, 1))
sketch7.addConstraint(Sketcher.Constraint("Coincident", 11, 2, 8, 1))
sketch7.addConstraint(Sketcher.Constraint("Coincident", 12, 2, 13, 1))
sketch7.addConstraint(Sketcher.Constraint("Coincident", 13, 2, 14, 1))
sketch7.addConstraint(Sketcher.Constraint("Coincident", 14, 2, 15, 1))
sketch7.addConstraint(Sketcher.Constraint("Coincident", 15, 2, 12, 1))
sketch7.addConstraint(Sketcher.Constraint("Coincident", 16, 2, 17, 1))
sketch7.addConstraint(Sketcher.Constraint("Coincident", 17, 2, 18, 1))
sketch7.addConstraint(Sketcher.Constraint("Coincident", 18, 2, 19, 1))
sketch7.addConstraint(Sketcher.Constraint("Coincident", 19, 2, 16, 1))
sketch7.addConstraint(Sketcher.Constraint("Coincident", 20, 2, 21, 1))
sketch7.addConstraint(Sketcher.Constraint("Coincident", 21, 2, 22, 1))
sketch7.addConstraint(Sketcher.Constraint("Coincident", 22, 2, 23, 1))
sketch7.addConstraint(Sketcher.Constraint("Coincident", 23, 2, 20, 1))
sketch7.addConstraint(Sketcher.Constraint("Coincident", 24, 2, 25, 1))
sketch7.addConstraint(Sketcher.Constraint("Coincident", 25, 2, 26, 1))
sketch7.addConstraint(Sketcher.Constraint("Coincident", 26, 2, 27, 1))
sketch7.addConstraint(Sketcher.Constraint("Coincident", 27, 2, 24, 1))
sketch7.addConstraint(Sketcher.Constraint("Coincident", 28, 2, 29, 1))
sketch7.addConstraint(Sketcher.Constraint("Coincident", 29, 2, 30, 1))
sketch7.addConstraint(Sketcher.Constraint("Coincident", 30, 2, 31, 1))
sketch7.addConstraint(Sketcher.Constraint("Coincident", 31, 2, 28, 1))
sketch7.addConstraint(Sketcher.Constraint("Coincident", 32, 2, 33, 1))
sketch7.addConstraint(Sketcher.Constraint("Coincident", 33, 2, 34, 1))
sketch7.addConstraint(Sketcher.Constraint("Coincident", 34, 2, 35, 1))
sketch7.addConstraint(Sketcher.Constraint("Coincident", 35, 2, 32, 1))
sketch7.addConstraint(Sketcher.Constraint("Coincident", 36, 2, 37, 1))
sketch7.addConstraint(Sketcher.Constraint("Coincident", 37, 2, 38, 1))
sketch7.addConstraint(Sketcher.Constraint("Coincident", 38, 2, 39, 1))
sketch7.addConstraint(Sketcher.Constraint("Coincident", 39, 2, 36, 1))
sketch7.addConstraint(Sketcher.Constraint("Coincident", 40, 2, 41, 1))
sketch7.addConstraint(Sketcher.Constraint("Coincident", 41, 2, 42, 1))
sketch7.addConstraint(Sketcher.Constraint("Coincident", 42, 2, 43, 1))
sketch7.addConstraint(Sketcher.Constraint("Coincident", 43, 2, 40, 1))
sketch7.addConstraint(Sketcher.Constraint("Coincident", 44, 2, 45, 1))
sketch7.addConstraint(Sketcher.Constraint("Coincident", 45, 2, 46, 1))
sketch7.addConstraint(Sketcher.Constraint("Coincident", 46, 2, 47, 1))
sketch7.addConstraint(Sketcher.Constraint("Coincident", 47, 2, 44, 1))
sketch7.addConstraint(Sketcher.Constraint("Horizontal", 0))
sketch7.addConstraint(Sketcher.Constraint("Vertical", 1))
sketch7.addConstraint(Sketcher.Constraint("Horizontal", 2))
sketch7.addConstraint(Sketcher.Constraint("Vertical", 4))
sketch7.addConstraint(Sketcher.Constraint("Horizontal", 5))
sketch7.addConstraint(Sketcher.Constraint("Vertical", 6))
sketch7.addConstraint(Sketcher.Constraint("Horizontal", 7))
sketch7.addConstraint(Sketcher.Constraint("Vertical", 8))
sketch7.addConstraint(Sketcher.Constraint("Horizontal", 9))
sketch7.addConstraint(Sketcher.Constraint("Vertical", 10))
sketch7.addConstraint(Sketcher.Constraint("Horizontal", 11))
sketch7.addConstraint(Sketcher.Constraint("Vertical", 12))
sketch7.addConstraint(Sketcher.Constraint("Horizontal", 13))
sketch7.addConstraint(Sketcher.Constraint("Vertical", 14))
sketch7.addConstraint(Sketcher.Constraint("Horizontal", 15))
sketch7.addConstraint(Sketcher.Constraint("Vertical", 16))
sketch7.addConstraint(Sketcher.Constraint("Horizontal", 17))
sketch7.addConstraint(Sketcher.Constraint("Vertical", 18))
sketch7.addConstraint(Sketcher.Constraint("Horizontal", 19))
sketch7.addConstraint(Sketcher.Constraint("Vertical", 20))
sketch7.addConstraint(Sketcher.Constraint("Horizontal", 21))
sketch7.addConstraint(Sketcher.Constraint("Vertical", 22))
sketch7.addConstraint(Sketcher.Constraint("Horizontal", 23))
sketch7.addConstraint(Sketcher.Constraint("Vertical", 24))
sketch7.addConstraint(Sketcher.Constraint("Horizontal", 25))
sketch7.addConstraint(Sketcher.Constraint("Vertical", 26))
sketch7.addConstraint(Sketcher.Constraint("Horizontal", 27))
sketch7.addConstraint(Sketcher.Constraint("Vertical", 28))
sketch7.addConstraint(Sketcher.Constraint("Horizontal", 29))
sketch7.addConstraint(Sketcher.Constraint("Vertical", 30))
sketch7.addConstraint(Sketcher.Constraint("Horizontal", 31))
sketch7.addConstraint(Sketcher.Constraint("Vertical", 32))
sketch7.addConstraint(Sketcher.Constraint("Horizontal", 33))
sketch7.addConstraint(Sketcher.Constraint("Vertical", 34))
sketch7.addConstraint(Sketcher.Constraint("Horizontal", 35))
sketch7.addConstraint(Sketcher.Constraint("Vertical", 36))
sketch7.addConstraint(Sketcher.Constraint("Horizontal", 37))
sketch7.addConstraint(Sketcher.Constraint("Vertical", 38))
sketch7.addConstraint(Sketcher.Constraint("Horizontal", 39))
sketch7.addConstraint(Sketcher.Constraint("Vertical", 40))
sketch7.addConstraint(Sketcher.Constraint("Horizontal", 41))
sketch7.addConstraint(Sketcher.Constraint("Vertical", 42))
sketch7.addConstraint(Sketcher.Constraint("Horizontal", 43))
sketch7.addConstraint(Sketcher.Constraint("Horizontal", 44))
sketch7.addConstraint(Sketcher.Constraint("Vertical", 45))
sketch7.addConstraint(Sketcher.Constraint("Horizontal", 46))
sketch7.addConstraint(Sketcher.Constraint("Symmetric", 27, 2, 28, 2, -1))
sketch7.addConstraint(Sketcher.Constraint("Symmetric", 25, 2, 30, 2, -1))
sketch7.addConstraint(Sketcher.Constraint("Symmetric", 11, 2, 32, 2, -1))
sketch7.addConstraint(Sketcher.Constraint("Symmetric", 9, 2, 34, 2, -1))
sketch7.addConstraint(Sketcher.Constraint("Symmetric", 23, 2, 36, 2, -1))
sketch7.addConstraint(Sketcher.Constraint("Symmetric", 21, 2, 38, 2, -1))
sketch7.addConstraint(Sketcher.Constraint("Symmetric", 19, 2, 40, 2, -1))
sketch7.addConstraint(Sketcher.Constraint("Symmetric", 17, 2, 42, 2, -1))
sketch7.addConstraint(Sketcher.Constraint("Symmetric", 1, 2, 44, 2, -1))
sketch7.addConstraint(Sketcher.Constraint("Symmetric", 3, 2, 46, 2, -1))
sketch7.addConstraint(Sketcher.Constraint("Horizontal", 3, 2, 8, 2))
sketch7.addConstraint(Sketcher.Constraint("Horizontal", 2, 2, 10, 2))
sketch7.addConstraint(Sketcher.Constraint("Horizontal", 9, 2, 16, 2))
sketch7.addConstraint(Sketcher.Constraint("Horizontal", 11, 2, 18, 2))
sketch7.addConstraint(Sketcher.Constraint("Horizontal", 7, 2, 22, 2))
sketch7.addConstraint(Sketcher.Constraint("Horizontal", 19, 2, 26, 2))
sketch7.addConstraint(Sketcher.Constraint("Horizontal", 5, 2, 36, 2))
sketch7.addConstraint(Sketcher.Constraint("Vertical", 1, 2, 5, 2))
sketch7.addConstraint(Sketcher.Constraint("Vertical", 15, 2, 16, 2))
sketch7.addConstraint(Sketcher.Constraint("Vertical", 19, 2, 20, 2))
sketch7.addConstraint(Sketcher.Constraint("Vertical", 14, 2, 21, 2))
sketch7.addConstraint(Sketcher.Constraint("Vertical", 2, 2, 47, 2))
sketch7.addConstraint(Sketcher.Constraint("DistanceY", 4, 1, 4, 2, 24.0))
sketch7.addConstraint(Sketcher.Constraint("DistanceY", 12, 1, 12, 2, 12.0))
sketch7.addConstraint(Sketcher.Constraint("DistanceY", 20, 1, 20, 2, 4.0))
sketch7.addConstraint(Sketcher.Constraint("DistanceY", 24, 1, 24, 2, 11.0))
sketch7.addConstraint(Sketcher.Constraint("DistanceX", 9, 1, 9, 2, 5.4))
sketch7.addConstraint(Sketcher.Constraint("DistanceX", 13, 1, 13, 2, 35.5))
sketch7.addConstraint(Sketcher.Constraint("DistanceX", 17, 1, 17, 2, 25.8))
sketch7.addConstraint(Sketcher.Constraint("DistanceY", -1, 1, 12, 2, 6.0))
sketch7.addConstraint(Sketcher.Constraint("DistanceX", -1, 1, 13, 2, 24.0))
sketch7.addConstraint(Sketcher.Constraint("DistanceX", -1, 1, 24, 2, 26.0))
sketch7.addConstraint(Sketcher.Constraint("DistanceX", 5, 2, 12, 2, 3.0))
sketch7.addConstraint(Sketcher.Constraint("DistanceX", 17, 2, 8, 2, 2.0))
sketch7.addConstraint(Sketcher.Constraint("DistanceX", 0, 1, 0, 2, 14.09))
sketch7.addConstraint(Sketcher.Constraint("DistanceX", 5, 1, 5, 2, 16.59))
sketch7.addConstraint(Sketcher.Constraint("DistanceX", 25, 1, 25, 2, 5.09))
sketch7.addConstraint(Sketcher.Constraint("DistanceY", 1, 2, 1, 1, 8.75))
sketch7.addConstraint(Sketcher.Constraint("DistanceY", 0, 2, -1, 1, 13.5))
sketch7.addConstraint(Sketcher.Constraint("DistanceX", 2, 2, 2, 1, 5.126707))
pocket3 = body.newObject("PartDesign::Pocket", "Pocket002")
pocket3.Profile = sketch7
pocket3.Length = 6
pocket3.Reversed = True
doc.recompute()

fillet3 = body.newObject("PartDesign::Fillet", "Fillet002")
fillet3.Base = (pocket3, edges_at(pocket3, [
    (-11.5, 4.64, -8),
    (-11.5, 4.64, -12),
    (24, 4.64, -12),
    (24, 4.64, -8),
    (-11.5, 4.64, -6),
    (24, 4.64, -6),
    (24, 4.64, 6),
    (-11.5, 4.64, 6),
    (26, 4.64, -11.25),
    (26, 4.64, -22.25),
    (31.09, 4.64, -22.25),
    (31.09, 4.64, -11.25),
    (16.3, 4.64, 22.25),
    (16.3, 4.64, 13.5),
    (21.7, 4.64, 13.5),
    (21.7, 4.64, 22.25),
    (16.3, 4.64, -13.5),
    (16.3, 4.64, -22.25),
    (21.7, 4.64, -22.25),
    (21.7, 4.64, -13.5),
    (-14.5, 4.64, -12),
    (-14.5, 4.64, 12),
    (-31.09, 4.64, 12),
    (-31.09, 4.64, -12),
    (26, 4.64, 22.25),
    (26, 4.64, 11.25),
    (31.09, 4.64, 11.25),
    (31.09, 4.64, 22.25),
    (-11.5, 4.64, -13.5),
    (-11.5, 4.64, -22.25),
    (14.3, 4.64, -22.25),
    (14.3, 4.64, -13.5),
    (-11.5, 4.64, 12),
    (-11.5, 4.64, 8),
    (24, 4.64, 8),
    (24, 4.64, 12),
    (-11.5, 4.64, 22.25),
    (-11.5, 4.64, 13.5),
    (14.3, 4.64, 13.5),
    (14.3, 4.64, 22.25),
    (-14.5, 4.64, 13.5),
    (-14.5, 4.64, 22.25),
    (-19.627, 4.64, 22.25),
    (-28.59, 4.64, 13.5),
    (-28.59, 4.64, -13.5),
    (-19.627, 4.64, -22.25),
    (-14.5, 4.64, -22.25),
    (-14.5, 4.64, -13.5),
]))
fillet3.Radius = 0.5

doc.recompute()
